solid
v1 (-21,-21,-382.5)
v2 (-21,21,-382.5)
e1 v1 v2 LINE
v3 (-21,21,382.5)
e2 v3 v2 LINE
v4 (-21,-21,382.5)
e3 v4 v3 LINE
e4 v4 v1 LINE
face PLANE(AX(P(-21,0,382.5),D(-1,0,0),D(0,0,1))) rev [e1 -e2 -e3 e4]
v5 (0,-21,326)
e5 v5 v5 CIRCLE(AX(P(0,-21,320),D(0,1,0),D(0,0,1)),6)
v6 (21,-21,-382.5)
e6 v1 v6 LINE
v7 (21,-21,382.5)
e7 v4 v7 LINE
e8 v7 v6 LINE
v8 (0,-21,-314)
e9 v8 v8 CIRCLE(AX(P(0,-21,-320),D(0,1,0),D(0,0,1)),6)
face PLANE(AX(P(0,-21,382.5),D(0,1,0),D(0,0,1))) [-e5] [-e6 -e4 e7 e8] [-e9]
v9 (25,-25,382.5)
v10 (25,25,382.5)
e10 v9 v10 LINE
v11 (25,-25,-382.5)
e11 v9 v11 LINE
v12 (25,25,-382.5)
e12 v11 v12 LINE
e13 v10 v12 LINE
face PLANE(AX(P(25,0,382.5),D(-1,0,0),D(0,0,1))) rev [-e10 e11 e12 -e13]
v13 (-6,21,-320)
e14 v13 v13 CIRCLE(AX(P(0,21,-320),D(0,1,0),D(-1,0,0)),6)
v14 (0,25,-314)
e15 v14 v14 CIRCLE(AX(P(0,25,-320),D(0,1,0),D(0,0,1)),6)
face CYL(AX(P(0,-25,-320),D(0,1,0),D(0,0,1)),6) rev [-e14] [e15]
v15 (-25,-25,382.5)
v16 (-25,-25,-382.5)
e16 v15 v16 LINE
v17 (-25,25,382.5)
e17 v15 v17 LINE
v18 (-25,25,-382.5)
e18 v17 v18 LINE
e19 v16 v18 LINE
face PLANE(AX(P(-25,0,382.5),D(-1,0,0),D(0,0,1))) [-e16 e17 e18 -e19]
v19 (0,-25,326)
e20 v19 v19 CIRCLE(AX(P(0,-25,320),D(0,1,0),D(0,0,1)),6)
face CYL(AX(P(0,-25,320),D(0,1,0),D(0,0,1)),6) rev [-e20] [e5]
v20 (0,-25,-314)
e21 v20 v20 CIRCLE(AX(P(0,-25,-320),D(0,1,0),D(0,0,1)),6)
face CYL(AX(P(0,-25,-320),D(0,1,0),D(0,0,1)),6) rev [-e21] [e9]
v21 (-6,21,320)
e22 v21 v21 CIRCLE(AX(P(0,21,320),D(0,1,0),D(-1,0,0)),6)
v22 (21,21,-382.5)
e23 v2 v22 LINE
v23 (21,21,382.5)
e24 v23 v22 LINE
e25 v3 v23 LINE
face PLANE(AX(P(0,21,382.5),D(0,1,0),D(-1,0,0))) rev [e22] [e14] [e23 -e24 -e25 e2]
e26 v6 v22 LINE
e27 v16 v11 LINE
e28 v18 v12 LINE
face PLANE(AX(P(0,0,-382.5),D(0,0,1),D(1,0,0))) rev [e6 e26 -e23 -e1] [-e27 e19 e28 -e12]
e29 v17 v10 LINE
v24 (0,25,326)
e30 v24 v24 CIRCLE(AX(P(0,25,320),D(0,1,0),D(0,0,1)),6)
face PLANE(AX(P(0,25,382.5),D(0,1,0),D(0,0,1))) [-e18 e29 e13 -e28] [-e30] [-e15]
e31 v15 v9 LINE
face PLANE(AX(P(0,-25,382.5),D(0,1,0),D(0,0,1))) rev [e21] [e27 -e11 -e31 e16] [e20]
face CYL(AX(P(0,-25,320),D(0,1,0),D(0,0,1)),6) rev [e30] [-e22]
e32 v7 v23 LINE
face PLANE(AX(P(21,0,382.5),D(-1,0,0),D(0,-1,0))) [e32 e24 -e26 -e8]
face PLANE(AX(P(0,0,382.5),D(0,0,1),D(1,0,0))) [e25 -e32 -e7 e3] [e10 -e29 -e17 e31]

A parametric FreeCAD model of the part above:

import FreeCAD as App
import Part
import Sketcher

V = App.Vector


def add_polygon(sketch, points):
    """Adds a closed chain of lines whose ends are joined by coincident constraints."""
    first, n = sketch.GeometryCount, len(points)
    for a, b in zip(points, points[1:] + points[:1]):
        sketch.addGeometry(Part.LineSegment(App.Vector(*a, 0), App.Vector(*b, 0)), False)
    for i in range(n):
        sketch.addConstraint(Sketcher.Constraint("Coincident", first + i, 2, first + (i + 1) % n, 1))

doc = App.newDocument("Part")
body = doc.addObject("PartDesign::Body", "Body")

sketch1 = doc.addObject("Sketcher::SketchObject", "Sketch")
body.addObject(sketch1)
sketch1.AttachmentSupport = (doc.XY_Plane, [""])
sketch1.MapMode = "FlatFace"
add_polygon(sketch1, [(-25, 25), (-25, -25), (25, -25), (25, 25)])
add_polygon(sketch1, [(21, -21), (-21, -21), (-21, 21), (21, 21)])
sketch1.addConstraint([
    Sketcher.Constraint("Vertical", 0),
    Sketcher.Constraint("Horizontal", 1),
    Sketcher.Constraint("Vertical", 2),
    Sketcher.Constraint("Horizontal", 3),
    Sketcher.Constraint("Horizontal", 4),
    Sketcher.Constraint("Vertical", 5),
    Sketcher.Constraint("Horizontal", 6),
    Sketcher.Constraint("Vertical", 7),
    Sketcher.Constraint("Symmetric", 0, 2, 2, 2, -1, 1),
    Sketcher.Constraint("Symmetric", 4, 2, 6, 2, -1, 1),
    Sketcher.Constraint("Equal", 3, 0),
    Sketcher.Constraint("Equal", 6, 5),
    Sketcher.Constraint("DistanceX", 1, 1, 1, 2, 50.0),
    Sketcher.Constraint("DistanceX", 4, 2, 4, 1, 42.0),
])
pad1 = doc.addObject("PartDesign::Pad", "Pad")
body.addObject(pad1)
pad1.Profile = sketch1
pad1.Length = 765
pad1.Midplane = True

sketch2 = doc.addObject("Sketcher::SketchObject", "Sketch001")
body.addObject(sketch2)
sketch2.AttachmentSupport = (doc.XZ_Plane, [""])
sketch2.MapMode = "FlatFace"
sketch2.AttachmentOffset = App.Placement(V(0, 0, -25), App.Rotation())
sketch2.addGeometry([
    Part.Circle(V(0, -320, 0), V(0, 0, 1), 6),
    Part.Circle(V(0, 320, 0), V(0, 0, 1), 6),
], False)
sketch2.addConstraint([
    Sketcher.Constraint("Equal", 0, 1),
    Sketcher.Constraint("Symmetric", 0, 3, 1, 3, -1, 1),
    Sketcher.Constraint("PointOnObject", 0, 3, -2),
    Sketcher.Constraint("Diameter", 0, 12.0),
    Sketcher.Constraint("DistanceY", 0, 3, -1, 1, 320.0),
])
pocket1 = doc.addObject("PartDesign::Pocket", "Pocket")
body.addObject(pocket1)
pocket1.Profile = sketch2
pocket1.Type = "ThroughAll"
pocket1.Reversed = True

doc.recompute()
